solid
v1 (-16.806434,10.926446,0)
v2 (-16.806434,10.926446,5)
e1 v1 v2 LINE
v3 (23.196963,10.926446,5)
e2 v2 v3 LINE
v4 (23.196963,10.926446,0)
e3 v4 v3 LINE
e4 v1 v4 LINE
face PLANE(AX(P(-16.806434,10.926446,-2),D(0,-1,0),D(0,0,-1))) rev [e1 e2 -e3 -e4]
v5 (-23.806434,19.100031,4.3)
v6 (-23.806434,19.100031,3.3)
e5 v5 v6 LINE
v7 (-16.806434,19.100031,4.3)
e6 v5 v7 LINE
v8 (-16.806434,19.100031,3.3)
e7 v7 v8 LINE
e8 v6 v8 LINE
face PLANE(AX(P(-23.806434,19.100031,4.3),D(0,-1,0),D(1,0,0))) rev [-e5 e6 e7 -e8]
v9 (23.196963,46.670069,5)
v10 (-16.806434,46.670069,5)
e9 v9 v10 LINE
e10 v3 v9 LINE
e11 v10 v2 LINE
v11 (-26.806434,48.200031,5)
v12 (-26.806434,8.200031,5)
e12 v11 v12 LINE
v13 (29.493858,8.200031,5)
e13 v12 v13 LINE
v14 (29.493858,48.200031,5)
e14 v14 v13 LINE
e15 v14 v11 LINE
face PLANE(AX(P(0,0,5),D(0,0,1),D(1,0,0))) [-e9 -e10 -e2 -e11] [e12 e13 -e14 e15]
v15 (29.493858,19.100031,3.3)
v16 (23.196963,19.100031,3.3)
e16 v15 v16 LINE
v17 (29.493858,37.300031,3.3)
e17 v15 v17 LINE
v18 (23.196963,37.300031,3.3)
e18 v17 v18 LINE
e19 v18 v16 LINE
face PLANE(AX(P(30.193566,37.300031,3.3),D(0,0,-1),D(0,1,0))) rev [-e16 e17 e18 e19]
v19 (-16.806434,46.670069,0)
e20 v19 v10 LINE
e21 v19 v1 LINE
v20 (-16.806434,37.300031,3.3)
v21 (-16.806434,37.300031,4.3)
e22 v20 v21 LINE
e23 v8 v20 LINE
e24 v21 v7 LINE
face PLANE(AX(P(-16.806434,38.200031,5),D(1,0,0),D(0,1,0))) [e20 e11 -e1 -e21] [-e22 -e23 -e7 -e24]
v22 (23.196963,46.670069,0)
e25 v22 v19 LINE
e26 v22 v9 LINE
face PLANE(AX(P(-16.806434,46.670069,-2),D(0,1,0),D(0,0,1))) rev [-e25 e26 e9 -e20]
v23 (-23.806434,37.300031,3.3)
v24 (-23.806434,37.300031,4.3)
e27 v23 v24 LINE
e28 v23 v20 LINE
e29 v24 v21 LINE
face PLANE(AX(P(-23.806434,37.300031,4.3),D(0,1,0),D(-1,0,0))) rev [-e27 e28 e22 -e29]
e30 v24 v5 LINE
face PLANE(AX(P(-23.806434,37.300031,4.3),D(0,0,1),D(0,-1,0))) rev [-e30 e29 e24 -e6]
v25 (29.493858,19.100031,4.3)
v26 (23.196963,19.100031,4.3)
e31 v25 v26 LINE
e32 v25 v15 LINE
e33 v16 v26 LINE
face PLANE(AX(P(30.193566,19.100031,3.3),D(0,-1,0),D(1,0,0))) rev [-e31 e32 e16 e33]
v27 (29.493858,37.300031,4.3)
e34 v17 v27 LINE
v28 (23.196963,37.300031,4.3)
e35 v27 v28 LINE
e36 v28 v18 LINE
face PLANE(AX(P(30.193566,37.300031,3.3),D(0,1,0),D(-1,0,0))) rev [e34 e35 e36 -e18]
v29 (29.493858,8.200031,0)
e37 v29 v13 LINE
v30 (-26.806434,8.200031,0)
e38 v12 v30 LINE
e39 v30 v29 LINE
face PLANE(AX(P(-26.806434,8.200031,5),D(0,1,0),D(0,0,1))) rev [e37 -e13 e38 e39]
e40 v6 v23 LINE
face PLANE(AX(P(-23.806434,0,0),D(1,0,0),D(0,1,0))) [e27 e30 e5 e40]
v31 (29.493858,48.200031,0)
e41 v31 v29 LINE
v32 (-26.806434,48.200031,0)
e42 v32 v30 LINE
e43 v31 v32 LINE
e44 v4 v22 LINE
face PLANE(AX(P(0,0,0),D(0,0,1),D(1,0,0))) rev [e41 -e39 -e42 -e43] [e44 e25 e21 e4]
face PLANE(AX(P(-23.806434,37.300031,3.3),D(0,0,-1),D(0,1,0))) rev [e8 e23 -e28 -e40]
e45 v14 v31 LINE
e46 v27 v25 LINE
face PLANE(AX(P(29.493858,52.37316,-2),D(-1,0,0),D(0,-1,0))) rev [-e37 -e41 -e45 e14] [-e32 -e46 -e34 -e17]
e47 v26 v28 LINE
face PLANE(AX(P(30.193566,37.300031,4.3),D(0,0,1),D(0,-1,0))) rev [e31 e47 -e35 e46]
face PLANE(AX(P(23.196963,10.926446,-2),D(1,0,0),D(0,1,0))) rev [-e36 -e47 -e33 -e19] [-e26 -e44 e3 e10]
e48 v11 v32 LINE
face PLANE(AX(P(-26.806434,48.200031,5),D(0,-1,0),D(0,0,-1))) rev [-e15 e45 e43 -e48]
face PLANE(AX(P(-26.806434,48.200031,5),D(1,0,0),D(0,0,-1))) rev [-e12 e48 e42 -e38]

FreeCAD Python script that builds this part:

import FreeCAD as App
import Part
import Sketcher
Q = App.Units.Quantity


def add_polygon(sketch, points):
    """Adds a closed chain of lines whose ends are joined by coincident constraints."""
    first, n = sketch.GeometryCount, len(points)
    for a, b in zip(points, points[1:] + points[:1]):
        sketch.addGeometry(Part.LineSegment(App.Vector(*a, 0), App.Vector(*b, 0)), False)
    for i in range(n):
        sketch.addConstraint(Sketcher.Constraint("Coincident", first + i, 2, first + (i + 1) % n, 1))

doc = App.newDocument("Part")
params = doc.addObject("Spreadsheet::Sheet", "Params")
for row, (alias, value) in enumerate([
    ("sketch1_width", "60 mm"),
    ("sketch1_height", "40 mm"),
    ("pad1_length", "5 mm"),
    ("sketch2_width", "40 mm"),
    ("sketch2_height", "20 mm"),
    ("sketch3_height", "1 mm"),
    ("sketch3_width", "18.2 mm"),
    ("pocket2_length", "7 mm"),
    ("sketch4_height", "1 mm"),
    ("sketch4_width", "18.2 mm"),
    ("pocket3_length", "7 mm"),
    ("pocket4_length", "7 mm"),
    ("pocket5_length", "7 mm"),
], start=1):
    params.set(f"A{row}", alias)
    params.set(f"B{row}", "=" + value)
    params.setAlias(f"B{row}", alias)

body = doc.addObject("PartDesign::Body", "Body")

# Sketch on XY plane
sketch1 = body.newObject("Sketcher::SketchObject", "Sketch")
sketch1.AttachmentSupport = (doc.getObject("XY_Plane"), [""])
sketch1.MapMode = "FlatFace"
add_polygon(sketch1, [(-27, 48), (-27, 8), (33, 8), (33, 48)])  # lines 0-3
sketch1.addConstraint([
    Sketcher.Constraint("Vertical", 0),
    Sketcher.Constraint("Horizontal", 1),
    Sketcher.Constraint("Vertical", 2),
    Sketcher.Constraint("Horizontal", 3),
    Sketcher.Constraint("DistanceX", 1, 1, 1, 2, Q("60 mm")),
    Sketcher.Constraint("DistanceY", 0, 2, 0, 1, Q("40 mm")),
    Sketcher.Constraint("DistanceY", -1, 1, 0, 2, Q("8.200031 mm")),
    Sketcher.Constraint("DistanceX", 0, 2, -1, 1, Q("26.806434 mm")),
])
sketch1.setExpression("Constraints[8]", "Params.sketch1_width")
sketch1.setExpression("Constraints[9]", "Params.sketch1_height")
pad1 = body.newObject("PartDesign::Pad", "Pad")
pad1.Profile = sketch1
pad1.setExpression("Length", "Params.pad1_length")

# Sketch on XY plane
sketch2 = body.newObject("Sketcher::SketchObject", "Sketch001")
sketch2.AttachmentSupport = (doc.getObject("XY_Plane"), [""])
sketch2.MapMode = "FlatFace"
sketch2.AttachmentOffset = App.Placement(App.Vector(0, 0, 5), App.Rotation())
add_polygon(sketch2, [(-17, 18), (23, 18), (23, 38), (-17, 38)])  # lines 0-3
sketch2.addConstraint([
    Sketcher.Constraint("Horizontal", 0),
    Sketcher.Constraint("Vertical", 1),
    Sketcher.Constraint("Horizontal", 2),
    Sketcher.Constraint("Vertical", 3),
    Sketcher.Constraint("DistanceX", 0, 1, 0, 2, Q("40 mm")),
    Sketcher.Constraint("DistanceY", 1, 1, 1, 2, Q("20 mm")),
    Sketcher.Constraint("DistanceY", -1, 1, 0, 2, Q("18.200031 mm")),
    Sketcher.Constraint("DistanceX", -1, 1, 0, 2, Q("23.193566 mm")),
])
sketch2.setExpression("Constraints[8]", "Params.sketch2_width")
sketch2.setExpression("Constraints[9]", "Params.sketch2_height")
pocket1 = body.newObject("PartDesign::Pocket", "Pocket")
pocket1.Profile = sketch2
pocket1.Type = "ThroughAll"
pocket1.Midplane = True

# Sketch on YZ plane
sketch3 = body.newObject("Sketcher::SketchObject", "Sketch002")
sketch3.AttachmentSupport = (doc.getObject("YZ_Plane"), [""])
sketch3.MapMode = "FlatFace"
sketch3.AttachmentOffset = App.Placement(App.Vector(0, 0, -16.806434), App.Rotation())
add_polygon(sketch3, [(37.300031, 4.3), (19.100031, 4.3), (19.100031, 3.3), (37.300031, 3.3)])  # lines 0-3
sketch3.addConstraint([
    Sketcher.Constraint("Horizontal", 0),
    Sketcher.Constraint("Vertical", 1),
    Sketcher.Constraint("Horizontal", 2),
    Sketcher.Constraint("Vertical", 3),
    Sketcher.Constraint("DistanceY", 1, 2, 1, 1, Q("1 mm")),
    Sketcher.Constraint("DistanceX", 0, 2, 0, 1, Q("18.2 mm")),
    Sketcher.Constraint("DistanceY", -1, 1, 0, 2, Q("4.3 mm")),
    Sketcher.Constraint("DistanceX", -1, 1, 0, 2, Q("19.100031 mm")),
])
sketch3.setExpression("Constraints[8]", "Params.sketch3_height")
sketch3.setExpression("Constraints[9]", "Params.sketch3_width")
pocket2 = body.newObject("PartDesign::Pocket", "Pocket001")
pocket2.Profile = sketch3
pocket2.setExpression("Length", "Params.pocket2_length")

# Sketch on YZ plane
sketch4 = body.newObject("Sketcher::SketchObject", "Sketch003")
sketch4.AttachmentSupport = (doc.getObject("YZ_Plane"), [""])
sketch4.MapMode = "FlatFace"
sketch4.AttachmentOffset = App.Placement(App.Vector(0, 0, 23.193566), App.Rotation())
add_polygon(sketch4, [(37.300031, 3.3), (19.100031, 3.3), (19.100031, 4.3), (37.300031, 4.3)])  # lines 0-3
sketch4.addConstraint([
    Sketcher.Constraint("Horizontal", 0),
    Sketcher.Constraint("Vertical", 1),
    Sketcher.Constraint("Horizontal", 2),
    Sketcher.Constraint("Vertical", 3),
    Sketcher.Constraint("DistanceY", 1, 1, 1, 2, Q("1 mm")),
    Sketcher.Constraint("DistanceX", 0, 2, 0, 1, Q("18.2 mm")),
    Sketcher.Constraint("DistanceY", -1, 1, 0, 2, Q("3.3 mm")),
    Sketcher.Constraint("DistanceX", -1, 1, 0, 2, Q("19.100031 mm")),
])
sketch4.setExpression("Constraints[8]", "Params.sketch4_height")
sketch4.setExpression("Constraints[9]", "Params.sketch4_width")
pocket3 = body.newObject("PartDesign::Pocket", "Pocket002")
pocket3.Profile = sketch4
pocket3.setExpression("Length", "Params.pocket3_length")
pocket3.Reversed = True

# Sketch on XY plane
sketch5 = body.newObject("Sketcher::SketchObject", "Sketch004")
sketch5.AttachmentSupport = (doc.getObject("XY_Plane"), [""])
sketch5.MapMode = "FlatFace"
sketch5.AttachmentOffset = App.Placement(App.Vector(0, 0, 5), App.Rotation())
add_polygon(sketch5, [(-17, 47), (-17, 11), (23, 11), (23, 47)])  # lines 0-3
sketch5.addConstraint([
    Sketcher.Constraint("Vertical", 0),
    Sketcher.Constraint("Horizontal", 1),
    Sketcher.Constraint("Vertical", 2),
    Sketcher.Constraint("Horizontal", 3),
    Sketcher.Constraint("DistanceX", 1, 1, 1, 2, Q("40.003398 mm")),
    Sketcher.Constraint("DistanceY", 0, 2, 0, 1, Q("35.743623 mm")),
    Sketcher.Constraint("DistanceY", -1, 1, 2, 2, Q("46.670069 mm")),
    Sketcher.Constraint("DistanceX", 0, 2, -1, 1, Q("16.806434 mm")),
])
pocket4 = body.newObject("PartDesign::Pocket", "Pocket003")
pocket4.Profile = sketch5
pocket4.setExpression("Length", "Params.pocket4_length")

# Sketch on XY plane
sketch6 = body.newObject("Sketcher::SketchObject", "Sketch005")
sketch6.AttachmentSupport = (doc.getObject("XY_Plane"), [""])
sketch6.MapMode = "FlatFace"
sketch6.AttachmentOffset = App.Placement(App.Vector(0, 0, 5), App.Rotation())
add_polygon(sketch6, [(29, 52), (29, 2), (42, 2), (42, 52)])  # lines 0-3
sketch6.addConstraint([
    Sketcher.Constraint("Vertical", 0),
    Sketcher.Constraint("Horizontal", 1),
    Sketcher.Constraint("Vertical", 2),
    Sketcher.Constraint("Horizontal", 3),
    Sketcher.Constraint("DistanceX", 1, 1, 1, 2, Q("12.082118 mm")),
    Sketcher.Constraint("DistanceY", 0, 2, 0, 1, Q("49.93444 mm")),
    Sketcher.Constraint("DistanceY", -1, 1, 0, 2, Q("2.43872 mm")),
    Sketcher.Constraint("DistanceX", -1, 1, 0, 2, Q("29.493858 mm")),
])
pocket5 = body.newObject("PartDesign::Pocket", "Pocket004")
pocket5.Profile = sketch6
pocket5.setExpression("Length", "Params.pocket5_length")

doc.recompute()
